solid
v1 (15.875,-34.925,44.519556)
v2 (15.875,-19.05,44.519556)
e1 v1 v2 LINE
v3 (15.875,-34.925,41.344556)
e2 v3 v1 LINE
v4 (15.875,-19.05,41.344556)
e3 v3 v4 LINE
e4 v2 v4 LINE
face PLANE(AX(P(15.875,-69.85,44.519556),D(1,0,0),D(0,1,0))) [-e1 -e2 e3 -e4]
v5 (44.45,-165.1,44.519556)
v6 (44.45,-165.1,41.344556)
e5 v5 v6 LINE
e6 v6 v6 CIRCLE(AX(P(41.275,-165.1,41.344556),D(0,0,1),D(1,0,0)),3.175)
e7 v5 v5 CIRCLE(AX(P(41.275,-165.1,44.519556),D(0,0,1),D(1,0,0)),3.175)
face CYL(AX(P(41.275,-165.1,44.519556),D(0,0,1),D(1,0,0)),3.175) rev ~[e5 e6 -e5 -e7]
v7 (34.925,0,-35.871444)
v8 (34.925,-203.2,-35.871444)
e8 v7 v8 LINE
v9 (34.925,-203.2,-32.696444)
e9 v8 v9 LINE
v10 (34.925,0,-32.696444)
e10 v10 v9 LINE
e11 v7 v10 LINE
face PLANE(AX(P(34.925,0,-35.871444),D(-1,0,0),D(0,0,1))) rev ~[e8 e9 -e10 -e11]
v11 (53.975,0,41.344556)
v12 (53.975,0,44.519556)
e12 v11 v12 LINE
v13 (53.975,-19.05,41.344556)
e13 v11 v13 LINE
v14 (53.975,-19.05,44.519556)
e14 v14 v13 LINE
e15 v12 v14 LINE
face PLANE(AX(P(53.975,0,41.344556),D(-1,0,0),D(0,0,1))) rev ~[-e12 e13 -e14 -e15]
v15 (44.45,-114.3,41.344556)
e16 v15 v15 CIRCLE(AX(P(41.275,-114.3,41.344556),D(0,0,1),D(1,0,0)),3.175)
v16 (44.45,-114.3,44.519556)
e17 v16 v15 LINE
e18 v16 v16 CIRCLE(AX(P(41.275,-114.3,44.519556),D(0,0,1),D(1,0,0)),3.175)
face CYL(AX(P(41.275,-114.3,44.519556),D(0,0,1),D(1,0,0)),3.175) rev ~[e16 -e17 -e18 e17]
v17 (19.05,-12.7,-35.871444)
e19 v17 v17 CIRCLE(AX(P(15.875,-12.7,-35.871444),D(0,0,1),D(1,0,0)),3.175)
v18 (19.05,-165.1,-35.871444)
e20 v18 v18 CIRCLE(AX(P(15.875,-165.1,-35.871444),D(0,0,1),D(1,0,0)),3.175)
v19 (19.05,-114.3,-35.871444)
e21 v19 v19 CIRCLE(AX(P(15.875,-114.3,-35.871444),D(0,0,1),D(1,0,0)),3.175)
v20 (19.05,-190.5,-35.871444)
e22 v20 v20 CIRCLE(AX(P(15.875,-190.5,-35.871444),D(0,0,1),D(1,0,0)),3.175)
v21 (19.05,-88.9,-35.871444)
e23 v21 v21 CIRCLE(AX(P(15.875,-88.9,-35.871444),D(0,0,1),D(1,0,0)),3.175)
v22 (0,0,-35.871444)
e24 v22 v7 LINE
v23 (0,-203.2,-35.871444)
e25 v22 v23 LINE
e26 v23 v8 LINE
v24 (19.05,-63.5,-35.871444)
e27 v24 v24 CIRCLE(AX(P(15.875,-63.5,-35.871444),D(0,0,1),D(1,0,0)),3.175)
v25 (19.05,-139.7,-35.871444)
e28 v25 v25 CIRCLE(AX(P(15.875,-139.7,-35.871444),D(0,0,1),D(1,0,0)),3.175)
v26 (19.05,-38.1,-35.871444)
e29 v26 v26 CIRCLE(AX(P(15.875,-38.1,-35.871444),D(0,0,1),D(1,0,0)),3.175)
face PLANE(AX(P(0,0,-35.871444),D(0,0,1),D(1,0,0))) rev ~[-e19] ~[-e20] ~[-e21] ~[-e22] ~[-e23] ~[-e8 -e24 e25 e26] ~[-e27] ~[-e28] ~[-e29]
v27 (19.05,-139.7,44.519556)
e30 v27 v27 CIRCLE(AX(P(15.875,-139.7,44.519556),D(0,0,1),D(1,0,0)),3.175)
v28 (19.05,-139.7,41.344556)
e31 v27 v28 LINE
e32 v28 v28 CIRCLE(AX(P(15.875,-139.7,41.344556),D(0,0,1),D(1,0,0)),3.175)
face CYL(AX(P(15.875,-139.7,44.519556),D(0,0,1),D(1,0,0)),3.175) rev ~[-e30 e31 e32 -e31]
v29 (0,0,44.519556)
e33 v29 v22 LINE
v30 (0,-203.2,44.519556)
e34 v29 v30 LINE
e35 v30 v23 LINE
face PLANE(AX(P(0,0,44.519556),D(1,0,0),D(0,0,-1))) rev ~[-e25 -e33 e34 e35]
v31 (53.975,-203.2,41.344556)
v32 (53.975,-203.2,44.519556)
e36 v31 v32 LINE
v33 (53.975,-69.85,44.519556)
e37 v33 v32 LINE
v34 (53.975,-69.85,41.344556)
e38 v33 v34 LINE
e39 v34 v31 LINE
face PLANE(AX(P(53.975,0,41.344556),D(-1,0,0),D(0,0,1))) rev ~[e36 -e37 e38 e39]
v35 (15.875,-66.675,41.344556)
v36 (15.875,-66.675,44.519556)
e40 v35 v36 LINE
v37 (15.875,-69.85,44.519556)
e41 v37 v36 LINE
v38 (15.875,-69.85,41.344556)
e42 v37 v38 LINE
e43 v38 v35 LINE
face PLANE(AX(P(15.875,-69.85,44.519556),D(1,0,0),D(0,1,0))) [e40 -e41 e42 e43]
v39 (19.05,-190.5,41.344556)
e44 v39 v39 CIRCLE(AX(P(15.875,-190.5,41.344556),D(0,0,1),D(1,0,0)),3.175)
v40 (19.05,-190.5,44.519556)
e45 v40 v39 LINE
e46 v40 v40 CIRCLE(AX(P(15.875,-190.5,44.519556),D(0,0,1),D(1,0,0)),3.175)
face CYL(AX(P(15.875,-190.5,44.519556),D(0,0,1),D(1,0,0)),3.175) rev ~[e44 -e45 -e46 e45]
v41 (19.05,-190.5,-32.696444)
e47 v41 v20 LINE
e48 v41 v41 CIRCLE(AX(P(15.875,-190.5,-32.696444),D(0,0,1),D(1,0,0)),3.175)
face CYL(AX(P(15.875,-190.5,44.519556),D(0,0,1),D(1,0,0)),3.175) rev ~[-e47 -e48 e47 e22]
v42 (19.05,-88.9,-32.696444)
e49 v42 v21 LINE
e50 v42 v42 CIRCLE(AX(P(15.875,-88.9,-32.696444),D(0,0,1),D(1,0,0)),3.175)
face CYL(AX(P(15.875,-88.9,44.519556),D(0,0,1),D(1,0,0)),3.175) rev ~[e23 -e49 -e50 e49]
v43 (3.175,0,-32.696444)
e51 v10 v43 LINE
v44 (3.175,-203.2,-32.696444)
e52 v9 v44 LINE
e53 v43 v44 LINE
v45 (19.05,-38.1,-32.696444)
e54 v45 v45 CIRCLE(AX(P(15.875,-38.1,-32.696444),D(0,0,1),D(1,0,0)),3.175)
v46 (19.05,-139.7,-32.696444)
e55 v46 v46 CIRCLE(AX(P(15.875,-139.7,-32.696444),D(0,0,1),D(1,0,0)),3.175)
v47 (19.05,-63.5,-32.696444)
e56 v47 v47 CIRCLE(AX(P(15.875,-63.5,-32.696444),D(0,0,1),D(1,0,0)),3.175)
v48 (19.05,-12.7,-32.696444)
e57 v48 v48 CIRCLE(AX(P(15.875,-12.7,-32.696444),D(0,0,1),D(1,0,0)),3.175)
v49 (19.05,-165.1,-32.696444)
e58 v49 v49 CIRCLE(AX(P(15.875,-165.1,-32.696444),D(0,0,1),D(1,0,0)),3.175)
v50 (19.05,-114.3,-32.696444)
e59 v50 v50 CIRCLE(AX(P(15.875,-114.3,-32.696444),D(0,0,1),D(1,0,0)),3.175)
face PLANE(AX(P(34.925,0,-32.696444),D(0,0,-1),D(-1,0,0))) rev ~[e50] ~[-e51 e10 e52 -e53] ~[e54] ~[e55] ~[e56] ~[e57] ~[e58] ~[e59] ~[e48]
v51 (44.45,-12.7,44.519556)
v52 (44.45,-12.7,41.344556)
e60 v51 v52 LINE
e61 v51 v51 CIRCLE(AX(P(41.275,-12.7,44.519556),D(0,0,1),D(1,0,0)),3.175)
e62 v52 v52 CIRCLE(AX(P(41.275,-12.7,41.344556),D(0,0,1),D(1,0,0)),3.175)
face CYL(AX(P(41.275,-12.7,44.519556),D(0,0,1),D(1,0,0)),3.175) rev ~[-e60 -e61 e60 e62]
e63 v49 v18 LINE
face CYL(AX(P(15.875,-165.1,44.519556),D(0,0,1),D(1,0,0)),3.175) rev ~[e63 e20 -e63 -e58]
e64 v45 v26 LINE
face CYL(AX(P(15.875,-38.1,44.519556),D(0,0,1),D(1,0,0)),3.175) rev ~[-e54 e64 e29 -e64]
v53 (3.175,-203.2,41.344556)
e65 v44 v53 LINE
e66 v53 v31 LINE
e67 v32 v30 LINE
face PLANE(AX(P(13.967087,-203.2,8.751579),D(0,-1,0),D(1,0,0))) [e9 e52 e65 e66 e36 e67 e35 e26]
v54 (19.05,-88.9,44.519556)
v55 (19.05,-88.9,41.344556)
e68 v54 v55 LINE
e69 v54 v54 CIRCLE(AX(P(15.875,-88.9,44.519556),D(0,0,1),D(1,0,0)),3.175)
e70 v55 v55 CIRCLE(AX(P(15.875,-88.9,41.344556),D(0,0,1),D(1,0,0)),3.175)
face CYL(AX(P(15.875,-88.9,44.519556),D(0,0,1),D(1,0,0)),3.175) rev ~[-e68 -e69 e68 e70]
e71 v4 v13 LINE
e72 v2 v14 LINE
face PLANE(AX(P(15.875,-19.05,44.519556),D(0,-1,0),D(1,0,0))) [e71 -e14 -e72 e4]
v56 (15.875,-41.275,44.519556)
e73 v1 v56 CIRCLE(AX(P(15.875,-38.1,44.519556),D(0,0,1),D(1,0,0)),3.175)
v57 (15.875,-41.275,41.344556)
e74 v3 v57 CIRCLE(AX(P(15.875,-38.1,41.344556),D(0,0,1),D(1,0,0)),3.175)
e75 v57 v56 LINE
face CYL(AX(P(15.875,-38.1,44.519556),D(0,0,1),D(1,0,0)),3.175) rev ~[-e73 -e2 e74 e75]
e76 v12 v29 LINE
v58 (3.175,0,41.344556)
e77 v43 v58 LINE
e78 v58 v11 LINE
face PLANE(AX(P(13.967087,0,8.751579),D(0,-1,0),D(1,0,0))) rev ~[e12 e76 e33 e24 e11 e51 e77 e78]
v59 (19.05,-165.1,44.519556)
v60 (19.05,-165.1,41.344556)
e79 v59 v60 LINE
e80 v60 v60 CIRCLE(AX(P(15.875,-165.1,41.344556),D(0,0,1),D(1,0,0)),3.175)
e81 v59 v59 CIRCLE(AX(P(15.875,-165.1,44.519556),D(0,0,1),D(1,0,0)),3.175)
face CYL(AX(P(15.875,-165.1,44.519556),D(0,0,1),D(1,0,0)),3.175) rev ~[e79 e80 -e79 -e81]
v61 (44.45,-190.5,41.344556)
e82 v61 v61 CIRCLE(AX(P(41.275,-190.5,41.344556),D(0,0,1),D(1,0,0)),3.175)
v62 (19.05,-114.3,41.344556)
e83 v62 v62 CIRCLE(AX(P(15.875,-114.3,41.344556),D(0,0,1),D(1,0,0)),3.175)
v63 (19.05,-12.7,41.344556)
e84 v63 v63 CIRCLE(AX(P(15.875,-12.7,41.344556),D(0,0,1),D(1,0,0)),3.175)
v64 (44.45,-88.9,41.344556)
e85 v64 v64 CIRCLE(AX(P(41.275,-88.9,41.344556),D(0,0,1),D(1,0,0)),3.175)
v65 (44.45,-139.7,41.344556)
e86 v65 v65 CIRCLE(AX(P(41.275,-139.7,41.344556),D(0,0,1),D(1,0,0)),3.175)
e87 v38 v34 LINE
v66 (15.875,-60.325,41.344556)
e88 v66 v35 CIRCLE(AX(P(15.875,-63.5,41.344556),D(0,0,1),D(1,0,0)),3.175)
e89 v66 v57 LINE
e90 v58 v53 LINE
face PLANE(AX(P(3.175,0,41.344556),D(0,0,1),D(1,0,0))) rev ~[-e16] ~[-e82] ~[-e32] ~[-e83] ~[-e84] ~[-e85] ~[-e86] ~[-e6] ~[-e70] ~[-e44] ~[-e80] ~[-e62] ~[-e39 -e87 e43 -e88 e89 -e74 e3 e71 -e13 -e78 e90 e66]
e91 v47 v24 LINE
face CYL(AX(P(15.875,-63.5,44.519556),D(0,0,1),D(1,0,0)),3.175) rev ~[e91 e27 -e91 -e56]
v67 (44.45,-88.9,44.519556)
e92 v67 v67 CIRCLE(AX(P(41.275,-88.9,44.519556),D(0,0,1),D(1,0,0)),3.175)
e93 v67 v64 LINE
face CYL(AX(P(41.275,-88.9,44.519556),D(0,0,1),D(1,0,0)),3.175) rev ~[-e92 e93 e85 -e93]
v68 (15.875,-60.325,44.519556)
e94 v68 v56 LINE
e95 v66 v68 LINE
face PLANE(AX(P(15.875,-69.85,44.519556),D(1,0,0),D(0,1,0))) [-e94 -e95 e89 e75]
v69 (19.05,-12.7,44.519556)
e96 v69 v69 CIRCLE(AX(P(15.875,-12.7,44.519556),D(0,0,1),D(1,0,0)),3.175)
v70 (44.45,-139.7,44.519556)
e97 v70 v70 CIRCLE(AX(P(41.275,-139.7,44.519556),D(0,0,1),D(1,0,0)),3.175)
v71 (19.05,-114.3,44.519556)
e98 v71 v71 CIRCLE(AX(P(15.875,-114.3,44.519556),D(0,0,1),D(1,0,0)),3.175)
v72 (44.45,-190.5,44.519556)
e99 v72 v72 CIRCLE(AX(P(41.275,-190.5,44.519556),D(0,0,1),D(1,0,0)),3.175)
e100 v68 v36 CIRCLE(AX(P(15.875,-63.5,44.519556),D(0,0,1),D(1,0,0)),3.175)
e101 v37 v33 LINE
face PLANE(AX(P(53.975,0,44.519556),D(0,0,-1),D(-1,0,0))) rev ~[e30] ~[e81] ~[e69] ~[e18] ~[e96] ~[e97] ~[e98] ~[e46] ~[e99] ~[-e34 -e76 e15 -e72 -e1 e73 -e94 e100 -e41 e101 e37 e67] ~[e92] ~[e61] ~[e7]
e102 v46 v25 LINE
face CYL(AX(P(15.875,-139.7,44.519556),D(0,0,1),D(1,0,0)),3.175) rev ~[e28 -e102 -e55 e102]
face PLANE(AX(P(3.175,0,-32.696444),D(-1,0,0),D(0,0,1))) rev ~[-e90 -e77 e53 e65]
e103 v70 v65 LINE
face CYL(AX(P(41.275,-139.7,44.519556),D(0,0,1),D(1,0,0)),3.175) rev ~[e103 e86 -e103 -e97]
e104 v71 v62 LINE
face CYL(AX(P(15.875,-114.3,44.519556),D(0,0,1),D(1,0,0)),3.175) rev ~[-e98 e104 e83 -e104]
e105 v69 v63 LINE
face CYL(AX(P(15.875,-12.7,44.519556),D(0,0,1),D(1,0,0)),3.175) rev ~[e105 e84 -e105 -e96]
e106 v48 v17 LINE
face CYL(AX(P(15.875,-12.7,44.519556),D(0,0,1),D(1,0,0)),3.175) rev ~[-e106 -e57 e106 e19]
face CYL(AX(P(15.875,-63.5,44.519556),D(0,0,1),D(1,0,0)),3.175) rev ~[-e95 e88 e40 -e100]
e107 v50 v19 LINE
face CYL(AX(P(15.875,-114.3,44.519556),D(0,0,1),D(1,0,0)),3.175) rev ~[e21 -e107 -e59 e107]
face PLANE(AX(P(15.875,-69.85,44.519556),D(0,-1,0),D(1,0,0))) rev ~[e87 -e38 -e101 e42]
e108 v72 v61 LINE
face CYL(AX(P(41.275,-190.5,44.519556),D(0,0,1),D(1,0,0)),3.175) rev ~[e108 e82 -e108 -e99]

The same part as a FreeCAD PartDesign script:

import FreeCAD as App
import Part
import Sketcher
from FreeCAD import Vector
Q = App.Units.Quantity


def add_polygon(sketch, points):
    """Adds a closed chain of lines whose ends are joined by coincident constraints."""
    first, n = sketch.GeometryCount, len(points)
    for a, b in zip(points, points[1:] + points[:1]):
        sketch.addGeometry(Part.LineSegment(App.Vector(*a, 0), App.Vector(*b, 0)), False)
    for i in range(n):
        sketch.addConstraint(Sketcher.Constraint("Coincident", first + i, 2, first + (i + 1) % n, 1))

doc = App.newDocument("Part")
params = doc.addObject("Spreadsheet::Sheet", "Params")
for row, (alias, value) in enumerate([
    ("sketch1_width", "2 in"),
    ("sketch1_width2", "1.25 in"),
    ("sketch1_width3", "2.125 in"),
    ("sketch1_height", "3.165 in"),
    ("sketch1_height2", "0.125 in"),
    ("pad1_length", "8 in"),
    ("sketch2_height", "2 in"),
    ("sketch2_width", "1.5 in"),
    ("pocket1_length", "1 in"),
    ("sketch3_diameter", "0.25 in"),
    ("pocket2_length", "4 in"),
], start=1):
    params.set(f"A{row}", alias)
    params.set(f"B{row}", "=" + value)
    params.setAlias(f"B{row}", alias)

body = doc.addObject("PartDesign::Body", "Body")

# Sketch on XZ plane
sketch1 = doc.addObject("Sketcher::SketchObject", "Sketch")
body.addObject(sketch1)
sketch1.AttachmentSupport = (doc.XZ_Plane, [""])
sketch1.MapMode = "FlatFace"
add_polygon(sketch1, [(54, 44.5), (0, 44.5), (0, -35.9), (34.9, -35.9), (34.9, -32.7), (3.2, -32.7), (3.2, 41.3), (54, 41.3)])  # lines 0-7
sketch1.addConstraint([
    Sketcher.Constraint("Horizontal", 0),
    Sketcher.Constraint("Vertical", 1),
    Sketcher.Constraint("Horizontal", 2),
    Sketcher.Constraint("Vertical", 3),
    Sketcher.Constraint("Horizontal", 4),
    Sketcher.Constraint("Vertical", 5),
    Sketcher.Constraint("Horizontal", 6),
    Sketcher.Constraint("Vertical", 7),
    Sketcher.Constraint("PointOnObject", 0, 2, -2),
    Sketcher.Constraint("Equal", 3, 7),
    Sketcher.Constraint("DistanceX", 6, 1, 6, 2, Q("2 in")),
    Sketcher.Constraint("DistanceX", 4, 2, 4, 1, Q("1.25 in")),
    Sketcher.Constraint("DistanceX", 0, 2, 0, 1, Q("2.125 in")),
    Sketcher.Constraint("DistanceY", 1, 2, 1, 1, Q("3.165 in")),
    Sketcher.Constraint("DistanceY", 3, 1, 3, 2, Q("0.125 in")),
    Sketcher.Constraint("DistanceY", -1, 1, 0, 2, Q("44.519556 mm")),
])
sketch1.setExpression("Constraints[18]", "Params.sketch1_width")
sketch1.setExpression("Constraints[19]", "Params.sketch1_width2")
sketch1.setExpression("Constraints[20]", "Params.sketch1_width3")
sketch1.setExpression("Constraints[21]", "Params.sketch1_height")
sketch1.setExpression("Constraints[22]", "Params.sketch1_height2")
pad1 = doc.addObject("PartDesign::Pad", "Pad")
body.addObject(pad1)
pad1.Profile = sketch1
pad1.setExpression("Length", "Params.pad1_length")

# Sketch on XY plane
sketch2 = doc.addObject("Sketcher::SketchObject", "Sketch001")
body.addObject(sketch2)
sketch2.AttachmentSupport = (doc.XY_Plane, [""])
sketch2.MapMode = "FlatFace"
sketch2.AttachmentOffset = App.Placement(Vector(0, 0, 44.519556), App.Rotation())
add_polygon(sketch2, [(16, -19), (16, -70), (54, -70), (54, -19)])  # lines 0-3
sketch2.addConstraint([
    Sketcher.Constraint("Vertical", 0),
    Sketcher.Constraint("Horizontal", 1),
    Sketcher.Constraint("Vertical", 2),
    Sketcher.Constraint("Horizontal", 3),
    Sketcher.Constraint("DistanceY", 0, 2, 0, 1, Q("2 in")),
    Sketcher.Constraint("DistanceX", 1, 1, 1, 2, Q("1.5 in")),
    Sketcher.Constraint("DistanceY", 0, 2, -1, 1, Q("2.75 in")),
    Sketcher.Constraint("DistanceX", -1, 1, 0, 2, Q("0.625 in")),
])
sketch2.setExpression("Constraints[8]", "Params.sketch2_height")
sketch2.setExpression("Constraints[9]", "Params.sketch2_width")
pocket1 = doc.addObject("PartDesign::Pocket", "Pocket")
body.addObject(pocket1)
pocket1.Profile = sketch2
pocket1.setExpression("Length", "Params.pocket1_length")

# Sketch on XY plane
sketch3 = doc.addObject("Sketcher::SketchObject", "Sketch002")
body.addObject(sketch3)
sketch3.AttachmentSupport = (doc.XY_Plane, [""])
sketch3.MapMode = "FlatFace"
sketch3.AttachmentOffset = App.Placement(Vector(0, 0, 44.519556), App.Rotation())
sketch3.addGeometry([
    Part.Circle(Vector(41.3, -190.5, 0), Vector(0, 0, 1), 3.2),  # 0
    Part.Circle(Vector(41.3, -165.1, 0), Vector(0, 0, 1), 3.2),  # 1
    Part.Circle(Vector(41.3, -139.7, 0), Vector(0, 0, 1), 3.2),  # 2
    Part.Circle(Vector(41.3, -114.3, 0), Vector(0, 0, 1), 3.2),  # 3
    Part.Circle(Vector(41.3, -88.9, 0), Vector(0, 0, 1), 3.2),  # 4
    Part.Circle(Vector(41.3, -63.5, 0), Vector(0, 0, 1), 3.2),  # 5
    Part.Circle(Vector(41.3, -38.1, 0), Vector(0, 0, 1), 3.2),  # 6
    Part.Circle(Vector(41.3, -12.7, 0), Vector(0, 0, 1), 3.2),  # 7
    Part.Circle(Vector(15.9, -190.5, 0), Vector(0, 0, 1), 3.2),  # 8
    Part.Circle(Vector(15.9, -165.1, 0), Vector(0, 0, 1), 3.2),  # 9
    Part.Circle(Vector(15.9, -139.7, 0), Vector(0, 0, 1), 3.2),  # 10
    Part.Circle(Vector(15.9, -114.3, 0), Vector(0, 0, 1), 3.2),  # 11
    Part.Circle(Vector(15.9, -88.9, 0), Vector(0, 0, 1), 3.2),  # 12
    Part.Circle(Vector(15.9, -63.5, 0), Vector(0, 0, 1), 3.2),  # 13
    Part.Circle(Vector(15.9, -38.1, 0), Vector(0, 0, 1), 3.2),  # 14
    Part.Circle(Vector(15.9, -12.7, 0), Vector(0, 0, 1), 3.2),  # 15
], False)
sketch3.addConstraint([
    Sketcher.Constraint("Equal", 0, 1),
    Sketcher.Constraint("Equal", 1, 2),
    Sketcher.Constraint("Equal", 2, 3),
    Sketcher.Constraint("Equal", 3, 4),
    Sketcher.Constraint("Equal", 4, 5),
    Sketcher.Constraint("Equal", 5, 6),
    Sketcher.Constraint("Equal", 6, 7),
    Sketcher.Constraint("Equal", 7, 8),
    Sketcher.Constraint("Equal", 8, 9),
    Sketcher.Constraint("Equal", 9, 10),
    Sketcher.Constraint("Equal", 10, 11),
    Sketcher.Constraint("Equal", 11, 12),
    Sketcher.Constraint("Equal", 12, 13),
    Sketcher.Constraint("Equal", 13, 14),
    Sketcher.Constraint("Equal", 14, 15),
    Sketcher.Constraint("Horizontal", 0, 3, 8, 3),
    Sketcher.Constraint("Horizontal", 1, 3, 9, 3),
    Sketcher.Constraint("Horizontal", 2, 3, 10, 3),
    Sketcher.Constraint("Horizontal", 3, 3, 11, 3),
    Sketcher.Constraint("Horizontal", 4, 3, 12, 3),
    Sketcher.Constraint("Horizontal", 5, 3, 13, 3),
    Sketcher.Constraint("Horizontal", 6, 3, 14, 3),
    Sketcher.Constraint("Horizontal", 7, 3, 15, 3),
    Sketcher.Constraint("Vertical", 0, 3, 1, 3),
    Sketcher.Constraint("Vertical", 1, 3, 2, 3),
    Sketcher.Constraint("Vertical", 2, 3, 3, 3),
    Sketcher.Constraint("Vertical", 3, 3, 4, 3),
    Sketcher.Constraint("Vertical", 4, 3, 5, 3),
    Sketcher.Constraint("Vertical", 5, 3, 6, 3),
    Sketcher.Constraint("Vertical", 6, 3, 7, 3),
    Sketcher.Constraint("Vertical", 8, 3, 9, 3),
    Sketcher.Constraint("Vertical", 9, 3, 10, 3),
    Sketcher.Constraint("Vertical", 10, 3, 11, 3),
    Sketcher.Constraint("Vertical", 11, 3, 12, 3),
    Sketcher.Constraint("Vertical", 12, 3, 13, 3),
    Sketcher.Constraint("Vertical", 13, 3, 14, 3),
    Sketcher.Constraint("Vertical", 14, 3, 15, 3),
    Sketcher.Constraint("Diameter", 0, Q("0.25 in")),
    Sketcher.Constraint("DistanceY", 0, 3, 1, 3, Q("1 in")),
    Sketcher.Constraint("DistanceY", 1, 3, 2, 3, Q("1 in")),
    Sketcher.Constraint("DistanceY", 2, 3, 3, 3, Q("1 in")),
    Sketcher.Constraint("DistanceY", 3, 3, 4, 3, Q("1 in")),
    Sketcher.Constraint("DistanceY", 4, 3, 5, 3, Q("1 in")),
    Sketcher.Constraint("DistanceY", 5, 3, 6, 3, Q("1 in")),
    Sketcher.Constraint("DistanceY", 6, 3, 7, 3, Q("1 in")),
    Sketcher.Constraint("DistanceX", 8, 3, 0, 3, Q("1 in")),
    Sketcher.Constraint("DistanceY", 0, 3, -1, 1, Q("7.5 in")),
    Sketcher.Constraint("DistanceX", -1, 1, 0, 3, Q("1.625 in")),
])
sketch3.setExpression("Constraints[37]", "Params.sketch3_diameter")
pocket2 = doc.addObject("PartDesign::Pocket", "Pocket001")
body.addObject(pocket2)
pocket2.Profile = sketch3
pocket2.setExpression("Length", "Params.pocket2_length")

doc.recompute()
